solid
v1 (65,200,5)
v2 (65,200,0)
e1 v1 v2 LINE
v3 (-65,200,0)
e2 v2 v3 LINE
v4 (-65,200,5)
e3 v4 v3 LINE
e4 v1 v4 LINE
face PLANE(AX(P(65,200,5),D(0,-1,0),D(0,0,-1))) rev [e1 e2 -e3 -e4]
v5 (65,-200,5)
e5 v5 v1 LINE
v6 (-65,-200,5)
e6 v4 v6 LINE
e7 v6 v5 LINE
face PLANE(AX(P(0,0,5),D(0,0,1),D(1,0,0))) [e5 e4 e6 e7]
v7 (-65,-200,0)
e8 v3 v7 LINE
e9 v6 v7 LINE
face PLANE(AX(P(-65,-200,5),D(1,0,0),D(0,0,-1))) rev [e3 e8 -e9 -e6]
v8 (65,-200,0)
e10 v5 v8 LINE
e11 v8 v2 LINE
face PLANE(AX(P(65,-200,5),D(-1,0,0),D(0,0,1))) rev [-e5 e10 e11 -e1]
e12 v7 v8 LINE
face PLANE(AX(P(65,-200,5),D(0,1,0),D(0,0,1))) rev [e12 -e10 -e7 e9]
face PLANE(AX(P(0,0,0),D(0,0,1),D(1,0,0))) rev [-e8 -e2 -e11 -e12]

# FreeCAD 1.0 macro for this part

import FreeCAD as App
import Part
import Sketcher
from FreeCAD import Vector


def add_polygon(sketch, points):
    """Adds a closed chain of lines whose ends are joined by coincident constraints."""
    first, n = sketch.GeometryCount, len(points)
    for a, b in zip(points, points[1:] + points[:1]):
        sketch.addGeometry(Part.LineSegment(App.Vector(*a, 0), App.Vector(*b, 0)), False)
    for i in range(n):
        sketch.addConstraint(Sketcher.Constraint("Coincident", first + i, 2, first + (i + 1) % n, 1))

doc = App.newDocument("Part")
params = doc.addObject("Spreadsheet::Sheet", "Params")
for row, (alias, value) in enumerate([
    ("sketch1_width", "130 mm"),
    ("sketch1_height", "400 mm"),
    ("pad1_length", "5 mm"),
], start=1):
    params.set(f"A{row}", alias)
    params.set(f"B{row}", "=" + value)
    params.setAlias(f"B{row}", alias)

body = doc.addObject("PartDesign::Body", "Body")

# Sketch on XY plane
sketch1 = body.newObject("Sketcher::SketchObject", "Sketch")
sketch1.AttachmentSupport = (doc.getObject("XY_Plane"), [""])
sketch1.MapMode = "FlatFace"
add_polygon(sketch1, [(-65, 200), (-65, -200), (65, -200), (65, 200)])  # lines 0-3
sketch1.addConstraint([
    Sketcher.Constraint("Vertical", 0),
    Sketcher.Constraint("Horizontal", 1),
    Sketcher.Constraint("Vertical", 2),
    Sketcher.Constraint("Horizontal", 3),
    Sketcher.Constraint("Symmetric", 0, 2, 2, 2, -1, 1),
    Sketcher.Constraint("DistanceX", 1, 1, 1, 2, 130.0),
    Sketcher.Constraint("DistanceY", 0, 2, 0, 1, 400.0),
])
sketch1.setExpression("Constraints[9]", "Params.sketch1_width")
sketch1.setExpression("Constraints[10]", "Params.sketch1_height")
pad1 = body.newObject("PartDesign::Pad", "Pad")
pad1.Profile = sketch1
pad1.setExpression("Length", "Params.pad1_length")

doc.recompute()
